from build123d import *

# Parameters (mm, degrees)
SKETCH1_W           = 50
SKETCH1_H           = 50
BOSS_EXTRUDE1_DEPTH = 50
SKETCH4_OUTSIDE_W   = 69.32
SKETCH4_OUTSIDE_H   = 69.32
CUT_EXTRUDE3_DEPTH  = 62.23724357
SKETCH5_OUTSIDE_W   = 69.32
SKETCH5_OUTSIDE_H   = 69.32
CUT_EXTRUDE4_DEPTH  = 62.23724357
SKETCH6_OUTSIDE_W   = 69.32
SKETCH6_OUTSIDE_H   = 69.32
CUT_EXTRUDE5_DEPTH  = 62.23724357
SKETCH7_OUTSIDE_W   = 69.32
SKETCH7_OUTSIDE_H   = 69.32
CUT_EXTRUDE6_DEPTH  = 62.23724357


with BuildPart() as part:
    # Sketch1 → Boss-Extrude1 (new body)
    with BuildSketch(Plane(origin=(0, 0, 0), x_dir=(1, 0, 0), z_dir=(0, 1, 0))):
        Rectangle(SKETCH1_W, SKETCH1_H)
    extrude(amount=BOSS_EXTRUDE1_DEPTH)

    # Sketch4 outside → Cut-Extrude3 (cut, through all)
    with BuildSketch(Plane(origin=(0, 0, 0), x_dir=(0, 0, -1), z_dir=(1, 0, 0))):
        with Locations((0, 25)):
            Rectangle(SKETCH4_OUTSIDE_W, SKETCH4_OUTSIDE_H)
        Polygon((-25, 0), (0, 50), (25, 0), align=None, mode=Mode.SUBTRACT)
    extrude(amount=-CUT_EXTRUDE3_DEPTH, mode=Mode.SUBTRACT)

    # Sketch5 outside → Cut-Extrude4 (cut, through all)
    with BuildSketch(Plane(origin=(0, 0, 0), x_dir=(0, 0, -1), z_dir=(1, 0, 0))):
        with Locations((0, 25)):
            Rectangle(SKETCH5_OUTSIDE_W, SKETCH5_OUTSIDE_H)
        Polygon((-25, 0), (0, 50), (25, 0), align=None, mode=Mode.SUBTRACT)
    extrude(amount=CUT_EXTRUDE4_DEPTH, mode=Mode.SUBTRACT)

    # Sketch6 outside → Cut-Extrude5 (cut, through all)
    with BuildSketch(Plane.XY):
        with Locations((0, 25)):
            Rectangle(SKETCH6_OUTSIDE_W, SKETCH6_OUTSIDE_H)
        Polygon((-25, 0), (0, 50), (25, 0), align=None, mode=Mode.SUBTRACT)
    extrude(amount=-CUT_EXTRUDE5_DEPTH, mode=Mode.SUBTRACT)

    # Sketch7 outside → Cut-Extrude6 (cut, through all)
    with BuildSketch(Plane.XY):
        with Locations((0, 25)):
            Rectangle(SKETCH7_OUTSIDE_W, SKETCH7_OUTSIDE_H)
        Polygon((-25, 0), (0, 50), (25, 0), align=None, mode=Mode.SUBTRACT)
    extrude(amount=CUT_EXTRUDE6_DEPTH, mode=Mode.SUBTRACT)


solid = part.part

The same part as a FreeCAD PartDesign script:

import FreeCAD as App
import Part
import Sketcher
from FreeCAD import Vector
Q = App.Units.Quantity


def add_polygon(sketch, points):
    """Adds a closed chain of lines whose ends are joined by coincident constraints."""
    first, n = sketch.GeometryCount, len(points)
    for a, b in zip(points, points[1:] + points[:1]):
        sketch.addGeometry(Part.LineSegment(App.Vector(*a, 0), App.Vector(*b, 0)), False)
    for i in range(n):
        sketch.addConstraint(Sketcher.Constraint("Coincident", first + i, 2, first + (i + 1) % n, 1))

doc = App.newDocument("Part")
body = doc.addObject("PartDesign::Body", "Body")

sketch1 = body.newObject("Sketcher::SketchObject", "Sketch")
sketch1.AttachmentSupport = (doc.getObject("XZ_Plane"), [""])
sketch1.MapMode = "FlatFace"
add_polygon(sketch1, [(-25, -25), (-25, 25), (25, 25), (25, -25)])
sketch1.addConstraint(Sketcher.Constraint("Vertical", 0))
sketch1.addConstraint(Sketcher.Constraint("Horizontal", 1))
sketch1.addConstraint(Sketcher.Constraint("Vertical", 2))
sketch1.addConstraint(Sketcher.Constraint("Horizontal", 3))
sketch1.addConstraint(Sketcher.Constraint("Symmetric", 0, 2, 2, 2, -1, 1))
sketch1.addConstraint(Sketcher.Constraint("Equal", 3, 0))
sketch1.addConstraint(Sketcher.Constraint("DistanceX", 1, 1, 1, 2, Q("50 mm")))
pad1 = body.newObject("PartDesign::Pad", "Pad")
pad1.Profile = sketch1
pad1.Length = 50
pad1.Reversed = True

sketch2 = body.newObject("Sketcher::SketchObject", "Sketch001")
sketch2.AttachmentSupport = (doc.getObject("YZ_Plane"), [""])
sketch2.MapMode = "FlatFace"
add_polygon(sketch2, [(60, 35), (-10, 35), (-10, -35), (60, -35)])
add_polygon(sketch2, [(0, -25), (0, 25), (50, 0)])
sketch2.addConstraint(Sketcher.Constraint("Horizontal", 0))
sketch2.addConstraint(Sketcher.Constraint("Vertical", 1))
sketch2.addConstraint(Sketcher.Constraint("Horizontal", 2))
sketch2.addConstraint(Sketcher.Constraint("Vertical", 3))
sketch2.addConstraint(Sketcher.Constraint("Vertical", 4))
sketch2.addConstraint(Sketcher.Constraint("Symmetric", 4, 2, 6, 2, -1, 1))
sketch2.addConstraint(Sketcher.Constraint("PointOnObject", 5, 2, -1))
sketch2.addConstraint(Sketcher.Constraint("Equal", 2, 1))
sketch2.addConstraint(Sketcher.Constraint("DistanceY", 4, 1, 4, 2, Q("50 mm")))
sketch2.addConstraint(Sketcher.Constraint("DistanceX", -1, 1, 5, 2, Q("50 mm")))
sketch2.addConstraint(Sketcher.Constraint("DistanceX", 0, 2, 0, 1, Q("69.32 mm")))
sketch2.addConstraint(Sketcher.Constraint("DistanceX", 0, 2, -1, 1, Q("9.66 mm")))
sketch2.addConstraint(Sketcher.Constraint("DistanceY", -1, 1, 0, 2, Q("34.66 mm")))
pocket1 = body.newObject("PartDesign::Pocket", "Pocket")
pocket1.Profile = sketch2
pocket1.Type = "ThroughAll"

sketch3 = body.newObject("Sketcher::SketchObject", "Sketch002")
sketch3.AttachmentSupport = (doc.getObject("YZ_Plane"), [""])
sketch3.MapMode = "FlatFace"
add_polygon(sketch3, [(60, 35), (-10, 35), (-10, -35), (60, -35)])
add_polygon(sketch3, [(0, -25), (0, 25), (50, 0)])
sketch3.addConstraint(Sketcher.Constraint("Horizontal", 0))
sketch3.addConstraint(Sketcher.Constraint("Vertical", 1))
sketch3.addConstraint(Sketcher.Constraint("Horizontal", 2))
sketch3.addConstraint(Sketcher.Constraint("Vertical", 3))
sketch3.addConstraint(Sketcher.Constraint("Vertical", 4))
sketch3.addConstraint(Sketcher.Constraint("Symmetric", 4, 2, 6, 2, -1, 1))
sketch3.addConstraint(Sketcher.Constraint("PointOnObject", 5, 2, -1))
sketch3.addConstraint(Sketcher.Constraint("Equal", 2, 1))
sketch3.addConstraint(Sketcher.Constraint("DistanceY", 4, 1, 4, 2, Q("50 mm")))
sketch3.addConstraint(Sketcher.Constraint("DistanceX", -1, 1, 5, 2, Q("50 mm")))
sketch3.addConstraint(Sketcher.Constraint("DistanceX", 0, 2, 0, 1, Q("69.32 mm")))
sketch3.addConstraint(Sketcher.Constraint("DistanceX", 0, 2, -1, 1, Q("9.66 mm")))
sketch3.addConstraint(Sketcher.Constraint("DistanceY", -1, 1, 0, 2, Q("34.66 mm")))
pocket2 = body.newObject("PartDesign::Pocket", "Pocket001")
pocket2.Profile = sketch3
pocket2.Type = "ThroughAll"
pocket2.Reversed = True

sketch4 = body.newObject("Sketcher::SketchObject", "Sketch003")
sketch4.AttachmentSupport = (doc.getObject("XY_Plane"), [""])
sketch4.MapMode = "FlatFace"
add_polygon(sketch4, [(-35, 60), (-35, -10), (35, -10), (35, 60)])
add_polygon(sketch4, [(25, 0), (-25, 0), (0, 50)])
sketch4.addConstraint(Sketcher.Constraint("Vertical", 0))
sketch4.addConstraint(Sketcher.Constraint("Horizontal", 1))
sketch4.addConstraint(Sketcher.Constraint("Vertical", 2))
sketch4.addConstraint(Sketcher.Constraint("Horizontal", 3))
sketch4.addConstraint(Sketcher.Constraint("Horizontal", 4))
sketch4.addConstraint(Sketcher.Constraint("Symmetric", 4, 2, 6, 2, -1, 1))
sketch4.addConstraint(Sketcher.Constraint("PointOnObject", 5, 2, -2))
sketch4.addConstraint(Sketcher.Constraint("Equal", 3, 0))
sketch4.addConstraint(Sketcher.Constraint("DistanceX", 4, 2, 4, 1, Q("50 mm")))
sketch4.addConstraint(Sketcher.Constraint("DistanceY", -1, 1, 5, 2, Q("50 mm")))
sketch4.addConstraint(Sketcher.Constraint("DistanceX", 1, 1, 1, 2, Q("69.32 mm")))
sketch4.addConstraint(Sketcher.Constraint("DistanceX", 0, 2, -1, 1, Q("34.66 mm")))
sketch4.addConstraint(Sketcher.Constraint("DistanceY", 0, 2, -1, 1, Q("9.66 mm")))
pocket3 = body.newObject("PartDesign::Pocket", "Pocket002")
pocket3.Profile = sketch4
pocket3.Type = "ThroughAll"

sketch5 = body.newObject("Sketcher::SketchObject", "Sketch004")
sketch5.AttachmentSupport = (doc.getObject("XY_Plane"), [""])
sketch5.MapMode = "FlatFace"
add_polygon(sketch5, [(-35, 60), (-35, -10), (35, -10), (35, 60)])
add_polygon(sketch5, [(25, 0), (-25, 0), (0, 50)])
sketch5.addConstraint(Sketcher.Constraint("Vertical", 0))
sketch5.addConstraint(Sketcher.Constraint("Horizontal", 1))
sketch5.addConstraint(Sketcher.Constraint("Vertical", 2))
sketch5.addConstraint(Sketcher.Constraint("Horizontal", 3))
sketch5.addConstraint(Sketcher.Constraint("Horizontal", 4))
sketch5.addConstraint(Sketcher.Constraint("Symmetric", 4, 2, 6, 2, -1, 1))
sketch5.addConstraint(Sketcher.Constraint("PointOnObject", 5, 2, -2))
sketch5.addConstraint(Sketcher.Constraint("Equal", 3, 0))
sketch5.addConstraint(Sketcher.Constraint("DistanceX", 4, 2, 4, 1, Q("50 mm")))
sketch5.addConstraint(Sketcher.Constraint("DistanceY", -1, 1, 5, 2, Q("50 mm")))
sketch5.addConstraint(Sketcher.Constraint("DistanceX", 1, 1, 1, 2, Q("69.32 mm")))
sketch5.addConstraint(Sketcher.Constraint("DistanceX", 0, 2, -1, 1, Q("34.66 mm")))
sketch5.addConstraint(Sketcher.Constraint("DistanceY", 0, 2, -1, 1, Q("9.66 mm")))
pocket4 = body.newObject("PartDesign::Pocket", "Pocket003")
pocket4.Profile = sketch5
pocket4.Type = "ThroughAll"
pocket4.Reversed = True

doc.recompute()
